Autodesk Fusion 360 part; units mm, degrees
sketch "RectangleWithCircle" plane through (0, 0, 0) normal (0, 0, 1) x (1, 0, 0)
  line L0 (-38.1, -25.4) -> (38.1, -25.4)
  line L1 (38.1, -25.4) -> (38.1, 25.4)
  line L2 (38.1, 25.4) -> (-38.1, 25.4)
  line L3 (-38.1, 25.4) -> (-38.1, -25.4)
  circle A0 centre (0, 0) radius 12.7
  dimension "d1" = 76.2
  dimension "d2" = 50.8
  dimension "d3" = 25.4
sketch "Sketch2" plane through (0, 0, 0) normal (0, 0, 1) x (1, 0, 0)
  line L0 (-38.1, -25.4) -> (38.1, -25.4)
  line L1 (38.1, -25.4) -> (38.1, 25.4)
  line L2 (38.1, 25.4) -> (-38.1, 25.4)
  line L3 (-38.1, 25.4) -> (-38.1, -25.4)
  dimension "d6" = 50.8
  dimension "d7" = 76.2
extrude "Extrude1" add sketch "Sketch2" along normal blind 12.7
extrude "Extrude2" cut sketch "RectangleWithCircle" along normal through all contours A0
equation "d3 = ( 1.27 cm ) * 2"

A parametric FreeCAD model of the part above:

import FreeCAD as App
import Part
import Sketcher
Q = App.Units.Quantity


def add_polygon(sketch, points):
    """Adds a closed chain of lines whose ends are joined by coincident constraints."""
    first, n = sketch.GeometryCount, len(points)
    for a, b in zip(points, points[1:] + points[:1]):
        sketch.addGeometry(Part.LineSegment(App.Vector(*a, 0), App.Vector(*b, 0)), False)
    for i in range(n):
        sketch.addConstraint(Sketcher.Constraint("Coincident", first + i, 2, first + (i + 1) % n, 1))

doc = App.newDocument("Part")
body = doc.addObject("PartDesign::Body", "Body")

# Sketch on XY plane
sketch1 = doc.addObject("Sketcher::SketchObject", "Sketch")
body.addObject(sketch1)
sketch1.AttachmentSupport = (doc.XY_Plane, [""])
sketch1.MapMode = "FlatFace"
add_polygon(sketch1, [(-38, 25), (-38, -25), (38, -25), (38, 25)])  # lines 0-3
sketch1.addConstraint(Sketcher.Constraint("Vertical", 0))
sketch1.addConstraint(Sketcher.Constraint("Horizontal", 1))
sketch1.addConstraint(Sketcher.Constraint("Vertical", 2))
sketch1.addConstraint(Sketcher.Constraint("Horizontal", 3))
sketch1.addConstraint(Sketcher.Constraint("Symmetric", 0, 2, 2, 2, -1, 1))
sketch1.addConstraint(Sketcher.Constraint("DistanceX", 1, 1, 1, 2, Q("3 in")))
sketch1.addConstraint(Sketcher.Constraint("DistanceY", 0, 2, 0, 1, Q("2 in")))
pad1 = doc.addObject("PartDesign::Pad", "Pad")
body.addObject(pad1)
pad1.Profile = sketch1
pad1.Length = Q("0.5 in")

# Sketch on XY plane
sketch2 = doc.addObject("Sketcher::SketchObject", "Sketch001")
body.addObject(sketch2)
sketch2.AttachmentSupport = (doc.XY_Plane, [""])
sketch2.MapMode = "FlatFace"
sketch2.addGeometry(Part.Circle(App.Vector(0, 0, 0), App.Vector(0, 0, 1), 13), False)
sketch2.addConstraint(Sketcher.Constraint("Coincident", 0, 3, -1, 1))
sketch2.addConstraint(Sketcher.Constraint("Diameter", 0, Q("1 in")))
pocket1 = doc.addObject("PartDesign::Pocket", "Pocket")
body.addObject(pocket1)
pocket1.Profile = sketch2
pocket1.Type = "ThroughAll"
pocket1.Reversed = True

doc.recompute()
